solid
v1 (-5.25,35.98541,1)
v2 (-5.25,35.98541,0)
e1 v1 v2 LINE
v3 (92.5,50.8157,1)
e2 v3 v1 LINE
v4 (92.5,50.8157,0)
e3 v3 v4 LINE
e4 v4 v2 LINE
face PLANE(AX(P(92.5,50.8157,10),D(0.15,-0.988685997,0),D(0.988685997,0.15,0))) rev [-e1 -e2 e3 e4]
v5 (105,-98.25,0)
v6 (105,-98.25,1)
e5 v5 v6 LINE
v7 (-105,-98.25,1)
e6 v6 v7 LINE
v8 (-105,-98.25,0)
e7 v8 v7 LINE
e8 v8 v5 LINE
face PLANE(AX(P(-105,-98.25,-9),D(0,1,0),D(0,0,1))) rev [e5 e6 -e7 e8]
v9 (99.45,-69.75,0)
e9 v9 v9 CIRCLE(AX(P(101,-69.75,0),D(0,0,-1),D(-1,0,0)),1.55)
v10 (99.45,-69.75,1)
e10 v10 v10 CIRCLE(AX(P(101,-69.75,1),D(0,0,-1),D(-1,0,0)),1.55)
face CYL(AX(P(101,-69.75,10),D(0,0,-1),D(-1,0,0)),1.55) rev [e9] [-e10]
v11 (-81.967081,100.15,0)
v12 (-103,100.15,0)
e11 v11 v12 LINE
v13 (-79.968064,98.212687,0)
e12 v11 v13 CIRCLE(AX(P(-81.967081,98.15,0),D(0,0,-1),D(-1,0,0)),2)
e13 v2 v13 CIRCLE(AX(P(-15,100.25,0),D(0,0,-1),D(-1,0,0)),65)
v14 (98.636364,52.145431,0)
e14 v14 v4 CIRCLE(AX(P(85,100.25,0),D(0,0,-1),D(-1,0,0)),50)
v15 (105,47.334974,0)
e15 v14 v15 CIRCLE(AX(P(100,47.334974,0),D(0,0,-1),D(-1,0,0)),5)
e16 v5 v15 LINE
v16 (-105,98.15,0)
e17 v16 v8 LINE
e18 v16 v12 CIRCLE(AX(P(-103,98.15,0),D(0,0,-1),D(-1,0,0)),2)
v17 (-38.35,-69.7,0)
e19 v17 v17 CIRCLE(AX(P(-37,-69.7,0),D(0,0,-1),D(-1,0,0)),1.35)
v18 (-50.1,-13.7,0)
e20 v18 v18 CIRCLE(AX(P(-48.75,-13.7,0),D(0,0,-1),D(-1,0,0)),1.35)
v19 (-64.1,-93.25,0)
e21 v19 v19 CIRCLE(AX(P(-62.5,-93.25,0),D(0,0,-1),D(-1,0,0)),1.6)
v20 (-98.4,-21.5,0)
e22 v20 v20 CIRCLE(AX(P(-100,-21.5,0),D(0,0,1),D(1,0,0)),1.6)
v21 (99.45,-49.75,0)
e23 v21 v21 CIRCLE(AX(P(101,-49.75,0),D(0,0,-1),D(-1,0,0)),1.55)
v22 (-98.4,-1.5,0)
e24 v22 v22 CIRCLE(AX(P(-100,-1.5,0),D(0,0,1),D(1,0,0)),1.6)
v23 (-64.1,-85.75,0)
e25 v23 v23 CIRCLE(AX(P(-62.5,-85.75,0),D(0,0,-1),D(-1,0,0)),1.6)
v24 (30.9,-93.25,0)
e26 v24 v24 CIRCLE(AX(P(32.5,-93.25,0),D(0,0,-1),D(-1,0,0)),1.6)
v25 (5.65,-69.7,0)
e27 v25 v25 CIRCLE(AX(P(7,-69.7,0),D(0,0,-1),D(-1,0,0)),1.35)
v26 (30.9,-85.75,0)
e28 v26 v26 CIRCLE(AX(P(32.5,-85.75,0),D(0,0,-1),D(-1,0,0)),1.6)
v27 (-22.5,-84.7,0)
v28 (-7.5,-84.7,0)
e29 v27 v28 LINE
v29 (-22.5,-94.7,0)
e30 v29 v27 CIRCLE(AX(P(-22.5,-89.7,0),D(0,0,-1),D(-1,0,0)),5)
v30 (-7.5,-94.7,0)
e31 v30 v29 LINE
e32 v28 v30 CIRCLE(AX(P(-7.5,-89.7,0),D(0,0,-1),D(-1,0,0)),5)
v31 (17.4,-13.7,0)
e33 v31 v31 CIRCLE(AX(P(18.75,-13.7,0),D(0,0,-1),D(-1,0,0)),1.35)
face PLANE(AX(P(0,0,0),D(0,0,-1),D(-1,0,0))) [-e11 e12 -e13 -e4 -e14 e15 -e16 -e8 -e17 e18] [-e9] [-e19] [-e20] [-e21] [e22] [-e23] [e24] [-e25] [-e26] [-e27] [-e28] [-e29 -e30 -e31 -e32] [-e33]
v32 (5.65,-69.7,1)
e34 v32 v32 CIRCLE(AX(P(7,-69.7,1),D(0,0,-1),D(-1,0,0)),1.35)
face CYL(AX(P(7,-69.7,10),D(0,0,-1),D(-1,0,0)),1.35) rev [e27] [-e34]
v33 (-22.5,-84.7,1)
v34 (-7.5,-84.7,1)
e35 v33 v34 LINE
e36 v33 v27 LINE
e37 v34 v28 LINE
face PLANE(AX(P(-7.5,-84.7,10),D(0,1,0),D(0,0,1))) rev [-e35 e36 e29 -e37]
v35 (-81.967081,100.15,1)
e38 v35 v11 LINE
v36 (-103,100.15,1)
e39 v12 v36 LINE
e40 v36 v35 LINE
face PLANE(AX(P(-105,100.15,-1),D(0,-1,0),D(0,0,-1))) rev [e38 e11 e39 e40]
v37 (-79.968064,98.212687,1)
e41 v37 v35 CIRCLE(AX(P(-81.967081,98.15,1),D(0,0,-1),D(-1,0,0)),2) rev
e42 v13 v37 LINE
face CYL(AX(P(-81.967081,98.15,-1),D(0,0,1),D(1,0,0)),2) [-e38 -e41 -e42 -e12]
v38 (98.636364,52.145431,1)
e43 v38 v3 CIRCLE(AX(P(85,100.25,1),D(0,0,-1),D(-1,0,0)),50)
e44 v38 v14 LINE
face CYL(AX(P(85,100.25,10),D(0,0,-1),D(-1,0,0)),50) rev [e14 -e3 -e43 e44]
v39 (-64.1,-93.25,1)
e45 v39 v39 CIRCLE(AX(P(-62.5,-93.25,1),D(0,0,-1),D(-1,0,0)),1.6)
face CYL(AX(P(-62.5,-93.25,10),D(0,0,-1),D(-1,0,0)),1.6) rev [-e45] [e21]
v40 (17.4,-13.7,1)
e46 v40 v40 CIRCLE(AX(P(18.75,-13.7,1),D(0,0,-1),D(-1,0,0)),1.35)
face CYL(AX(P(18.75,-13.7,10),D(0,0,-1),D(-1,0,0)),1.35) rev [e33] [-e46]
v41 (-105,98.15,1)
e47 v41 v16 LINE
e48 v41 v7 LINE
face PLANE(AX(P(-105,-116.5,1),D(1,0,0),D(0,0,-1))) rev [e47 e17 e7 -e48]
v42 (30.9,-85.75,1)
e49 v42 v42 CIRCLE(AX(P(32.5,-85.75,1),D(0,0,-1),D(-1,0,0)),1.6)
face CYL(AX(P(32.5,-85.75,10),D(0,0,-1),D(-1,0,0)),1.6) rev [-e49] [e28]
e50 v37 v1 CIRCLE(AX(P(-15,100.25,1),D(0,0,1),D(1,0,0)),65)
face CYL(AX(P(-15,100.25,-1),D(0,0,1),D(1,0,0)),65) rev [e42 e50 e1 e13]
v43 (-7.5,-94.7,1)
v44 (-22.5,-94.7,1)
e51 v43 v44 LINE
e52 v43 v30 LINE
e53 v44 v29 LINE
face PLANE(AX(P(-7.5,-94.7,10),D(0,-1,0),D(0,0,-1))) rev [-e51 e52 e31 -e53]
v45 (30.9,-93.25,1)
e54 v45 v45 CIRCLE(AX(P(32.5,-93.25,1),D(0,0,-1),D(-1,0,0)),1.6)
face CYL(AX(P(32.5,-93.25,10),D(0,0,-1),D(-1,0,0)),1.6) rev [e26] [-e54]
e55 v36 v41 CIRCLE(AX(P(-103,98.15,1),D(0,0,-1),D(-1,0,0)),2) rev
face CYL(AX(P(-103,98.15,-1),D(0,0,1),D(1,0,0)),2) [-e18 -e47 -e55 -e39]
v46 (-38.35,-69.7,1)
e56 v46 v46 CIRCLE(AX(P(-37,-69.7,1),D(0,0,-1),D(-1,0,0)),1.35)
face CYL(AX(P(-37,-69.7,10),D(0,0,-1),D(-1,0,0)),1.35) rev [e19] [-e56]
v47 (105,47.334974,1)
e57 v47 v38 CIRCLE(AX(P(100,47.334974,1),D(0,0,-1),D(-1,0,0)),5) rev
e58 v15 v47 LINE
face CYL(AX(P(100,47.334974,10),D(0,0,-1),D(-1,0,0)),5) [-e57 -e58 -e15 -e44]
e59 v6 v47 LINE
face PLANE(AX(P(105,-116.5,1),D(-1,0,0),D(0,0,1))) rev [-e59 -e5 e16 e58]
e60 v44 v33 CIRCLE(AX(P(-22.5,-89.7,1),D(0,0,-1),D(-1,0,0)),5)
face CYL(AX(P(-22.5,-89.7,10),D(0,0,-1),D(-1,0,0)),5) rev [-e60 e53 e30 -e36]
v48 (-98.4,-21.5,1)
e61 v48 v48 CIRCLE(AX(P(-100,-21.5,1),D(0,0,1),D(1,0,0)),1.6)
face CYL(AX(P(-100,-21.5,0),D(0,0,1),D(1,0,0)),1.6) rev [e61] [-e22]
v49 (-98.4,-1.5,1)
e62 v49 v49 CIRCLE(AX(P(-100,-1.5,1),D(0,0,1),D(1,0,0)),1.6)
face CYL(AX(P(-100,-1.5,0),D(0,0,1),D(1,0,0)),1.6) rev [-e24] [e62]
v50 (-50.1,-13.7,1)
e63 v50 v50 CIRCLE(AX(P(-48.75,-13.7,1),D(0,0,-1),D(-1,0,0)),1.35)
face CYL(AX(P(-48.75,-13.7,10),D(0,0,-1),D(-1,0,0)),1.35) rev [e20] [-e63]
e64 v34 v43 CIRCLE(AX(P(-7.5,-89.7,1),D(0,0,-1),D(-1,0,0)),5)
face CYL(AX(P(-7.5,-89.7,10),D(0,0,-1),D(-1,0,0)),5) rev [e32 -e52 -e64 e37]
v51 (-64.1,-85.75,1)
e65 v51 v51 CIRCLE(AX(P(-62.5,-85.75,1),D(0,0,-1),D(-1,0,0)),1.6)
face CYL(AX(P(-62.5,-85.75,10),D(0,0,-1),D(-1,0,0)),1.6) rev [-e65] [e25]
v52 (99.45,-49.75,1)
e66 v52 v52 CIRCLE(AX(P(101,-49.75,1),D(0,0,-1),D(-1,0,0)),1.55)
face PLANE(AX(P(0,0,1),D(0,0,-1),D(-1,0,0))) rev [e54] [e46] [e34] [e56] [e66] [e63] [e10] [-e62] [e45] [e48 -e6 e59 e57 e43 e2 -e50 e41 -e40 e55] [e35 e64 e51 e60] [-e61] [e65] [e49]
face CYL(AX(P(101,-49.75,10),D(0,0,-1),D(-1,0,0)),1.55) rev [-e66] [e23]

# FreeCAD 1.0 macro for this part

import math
import FreeCAD as App
import Part
import Sketcher


def edges_at(feature, points):
    """Names of the edges that pass closest to the given points."""
    edges = feature.Shape.Edges
    near = lambda p: min(range(len(edges)), key=lambda i: edges[i].distToShape(Part.Vertex(*p))[0])
    return sorted({f"Edge{near(p) + 1}" for p in points})

doc = App.newDocument("Part")
body = doc.addObject("PartDesign::Body", "Body")

sketch1 = body.newObject("Sketcher::SketchObject", "Sketch")
sketch1.AttachmentSupport = (doc.getObject("XY_Plane"), [""])
sketch1.MapMode = "FlatFace"
sketch1.addGeometry(Part.LineSegment(App.Vector(-105, 116.5, 0), App.Vector(-105, -116.5, 0)), False)
sketch1.addGeometry(Part.LineSegment(App.Vector(-105, -116.5, 0), App.Vector(105, -116.5, 0)), False)
sketch1.addGeometry(Part.LineSegment(App.Vector(105, -116.5, 0), App.Vector(105, 116.5, 0)), False)
sketch1.addGeometry(Part.LineSegment(App.Vector(105, 116.5, 0), App.Vector(-105, 116.5, 0)), False)
sketch1.addConstraint(Sketcher.Constraint("Coincident", 0, 2, 1, 1))
sketch1.addConstraint(Sketcher.Constraint("Coincident", 1, 2, 2, 1))
sketch1.addConstraint(Sketcher.Constraint("Coincident", 2, 2, 3, 1))
sketch1.addConstraint(Sketcher.Constraint("Coincident", 3, 2, 0, 1))
sketch1.addConstraint(Sketcher.Constraint("Vertical", 0))
sketch1.addConstraint(Sketcher.Constraint("Horizontal", 1))
sketch1.addConstraint(Sketcher.Constraint("Vertical", 2))
sketch1.addConstraint(Sketcher.Constraint("Horizontal", 3))
sketch1.addConstraint(Sketcher.Constraint("Symmetric", 0, 2, 2, 2, -1, 1))
sketch1.addConstraint(Sketcher.Constraint("DistanceX", 1, 1, 1, 2, 210.0))
sketch1.addConstraint(Sketcher.Constraint("DistanceY", 0, 2, 0, 1, 233.0))
pad1 = body.newObject("PartDesign::Pad", "Pad")
pad1.Profile = sketch1
pad1.Length = 1

sketch2 = body.newObject("Sketcher::SketchObject", "Sketch001")
sketch2.AttachmentSupport = (doc.getObject("XY_Plane"), [""])
sketch2.MapMode = "FlatFace"
sketch2.AttachmentOffset = App.Placement(App.Vector(0, 0, 1), App.Rotation())
sketch2.addGeometry(Part.Circle(App.Vector(-15, 100.25, 0), App.Vector(0, 0, 1), 65), False)
sketch2.addConstraint(Sketcher.Constraint("Diameter", 0, 130.0))
sketch2.addConstraint(Sketcher.Constraint("DistanceX", 0, 3, -1, 1, 15.0))
sketch2.addConstraint(Sketcher.Constraint("DistanceY", -1, 1, 0, 3, 100.25))
pocket1 = body.newObject("PartDesign::Pocket", "Pocket")
pocket1.Profile = sketch2
pocket1.Length = 2

sketch3 = body.newObject("Sketcher::SketchObject", "Sketch002")
sketch3.AttachmentSupport = (doc.getObject("XY_Plane"), [""])
sketch3.MapMode = "FlatFace"
sketch3.AttachmentOffset = App.Placement(App.Vector(0, 0, 1), App.Rotation())
sketch3.addGeometry(Part.LineSegment(App.Vector(-105, 116.5, 0), App.Vector(-105, 100.25, 0)), False)
sketch3.addGeometry(Part.LineSegment(App.Vector(-105, 100.25, 0), App.Vector(105, 100.25, 0)), False)
sketch3.addGeometry(Part.LineSegment(App.Vector(105, 100.25, 0), App.Vector(105, 116.5, 0)), False)
sketch3.addGeometry(Part.LineSegment(App.Vector(105, 116.5, 0), App.Vector(-105, 116.5, 0)), False)
sketch3.addConstraint(Sketcher.Constraint("Coincident", 0, 2, 1, 1))
sketch3.addConstraint(Sketcher.Constraint("Coincident", 1, 2, 2, 1))
sketch3.addConstraint(Sketcher.Constraint("Coincident", 2, 2, 3, 1))
sketch3.addConstraint(Sketcher.Constraint("Coincident", 3, 2, 0, 1))
sketch3.addConstraint(Sketcher.Constraint("Vertical", 0))
sketch3.addConstraint(Sketcher.Constraint("Horizontal", 1))
sketch3.addConstraint(Sketcher.Constraint("Vertical", 2))
sketch3.addConstraint(Sketcher.Constraint("Horizontal", 3))
sketch3.addConstraint(Sketcher.Constraint("DistanceX", 1, 1, 1, 2, 210.0))
sketch3.addConstraint(Sketcher.Constraint("DistanceX", 0, 2, -1, 1, 105.0))
sketch3.addConstraint(Sketcher.Constraint("DistanceY", 0, 2, 0, 1, 16.25))
sketch3.addConstraint(Sketcher.Constraint("DistanceY", -1, 1, 2, 2, 116.5))
pocket2 = body.newObject("PartDesign::Pocket", "Pocket001")
pocket2.Profile = sketch3
pocket2.Length = 2

sketch4 = body.newObject("Sketcher::SketchObject", "Sketch003")
sketch4.AttachmentSupport = (doc.getObject("XY_Plane"), [""])
sketch4.MapMode = "FlatFace"
sketch4.AttachmentOffset = App.Placement(App.Vector(0, 0, 1), App.Rotation())
sketch4.addGeometry(Part.LineSegment(App.Vector(-105, 100.25, 0), App.Vector(-105, 100.15, 0)), False)
sketch4.addGeometry(Part.LineSegment(App.Vector(-105, 100.15, 0), App.Vector(105, 100.15, 0)), False)
sketch4.addGeometry(Part.LineSegment(App.Vector(105, 100.15, 0), App.Vector(105, 100.25, 0)), False)
sketch4.addGeometry(Part.LineSegment(App.Vector(105, 100.25, 0), App.Vector(-105, 100.25, 0)), False)
sketch4.addConstraint(Sketcher.Constraint("Coincident", 0, 2, 1, 1))
sketch4.addConstraint(Sketcher.Constraint("Coincident", 1, 2, 2, 1))
sketch4.addConstraint(Sketcher.Constraint("Coincident", 2, 2, 3, 1))
sketch4.addConstraint(Sketcher.Constraint("Coincident", 3, 2, 0, 1))
sketch4.addConstraint(Sketcher.Constraint("Vertical", 0))
sketch4.addConstraint(Sketcher.Constraint("Horizontal", 1))
sketch4.addConstraint(Sketcher.Constraint("Vertical", 2))
sketch4.addConstraint(Sketcher.Constraint("Horizontal", 3))
sketch4.addConstraint(Sketcher.Constraint("DistanceX", 1, 1, 1, 2, 210.0))
sketch4.addConstraint(Sketcher.Constraint("DistanceY", 0, 2, 0, 1, 0.1))
sketch4.addConstraint(Sketcher.Constraint("DistanceX", 0, 2, -1, 1, 105.0))
sketch4.addConstraint(Sketcher.Constraint("DistanceY", -1, 1, 0, 2, 100.15))
pocket3 = body.newObject("PartDesign::Pocket", "Pocket002")
pocket3.Profile = sketch4
pocket3.Length = 2

sketch5 = body.newObject("Sketcher::SketchObject", "Sketch004")
sketch5.AttachmentSupport = (doc.getObject("XY_Plane"), [""])
sketch5.MapMode = "FlatFace"
sketch5.AttachmentOffset = App.Placement(App.Vector(0, 0, 1), App.Rotation())
sketch5.addGeometry(Part.LineSegment(App.Vector(4.5, 38.243952, 0), App.Vector(95.5, 66.862128, 0)), False)
sketch5.addGeometry(Part.ArcOfCircle(Part.Circle(App.Vector(85, 100.25, 0), App.Vector(0, 0, 1), 35), math.radians(-72.542397), math.radians(179.960655)), False)
sketch5.addGeometry(Part.LineSegment(App.Vector(50.000008, 100.274035, 0), App.Vector(49.999923, 100.15, 0)), False)
sketch5.addGeometry(Part.ArcOfCircle(Part.Circle(App.Vector(-15, 100.25, 0), App.Vector(0, 0, 1), 65), math.radians(-72.542397), math.radians(-0.088147)), False)
sketch5.addConstraint(Sketcher.Constraint("Tangent", 0, 2, 1, 1))
sketch5.addConstraint(Sketcher.Constraint("Tangent", 1, 2, 2, 1))
sketch5.addConstraint(Sketcher.Constraint("Coincident", 2, 2, 3, 2))
sketch5.addConstraint(Sketcher.Constraint("Tangent", 3, 1, 0, 1))
sketch5.addConstraint(Sketcher.Constraint("Horizontal", 1, 3, 3, 3))
sketch5.addConstraint(Sketcher.Constraint("Radius", 1, 35.0))
sketch5.addConstraint(Sketcher.Constraint("Radius", 3, 65.0))
sketch5.addConstraint(Sketcher.Constraint("DistanceX", -1, 1, 1, 3, 85.0))
sketch5.addConstraint(Sketcher.Constraint("DistanceX", 3, 3, -1, 1, 15.0))
sketch5.addConstraint(Sketcher.Constraint("DistanceY", 2, 2, 1, 3, 0.1))
sketch5.addConstraint(Sketcher.Constraint("DistanceY", -1, 1, 1, 3, 100.25))
pocket4 = body.newObject("PartDesign::Pocket", "Pocket003")
pocket4.Profile = sketch5
pocket4.Length = 2

sketch6 = body.newObject("Sketcher::SketchObject", "Sketch005")
sketch6.AttachmentSupport = (doc.getObject("XY_Plane"), [""])
sketch6.MapMode = "FlatFace"
sketch6.AttachmentOffset = App.Placement(App.Vector(0, 0, 1), App.Rotation())
sketch6.addGeometry(Part.Circle(App.Vector(-100, -21.5, 0), App.Vector(0, 0, 1), 1.6), False)
sketch6.addGeometry(Part.Circle(App.Vector(-100, -1.5, 0), App.Vector(0, 0, 1), 1.6), False)
sketch6.addConstraint(Sketcher.Constraint("Equal", 0, 1))
sketch6.addConstraint(Sketcher.Constraint("Vertical", 0, 3, 1, 3))
sketch6.addConstraint(Sketcher.Constraint("Diameter", 0, 3.2))
sketch6.addConstraint(Sketcher.Constraint("DistanceX", 0, 3, -1, 1, 100.0))
sketch6.addConstraint(Sketcher.Constraint("DistanceY", 0, 3, 1, 3, 20.0))
sketch6.addConstraint(Sketcher.Constraint("DistanceY", 0, 3, -1, 1, 21.5))
pocket5 = body.newObject("PartDesign::Pocket", "Pocket004")
pocket5.Profile = sketch6
pocket5.Length = 1

sketch7 = body.newObject("Sketcher::SketchObject", "Sketch006")
sketch7.AttachmentSupport = (doc.getObject("XY_Plane"), [""])
sketch7.MapMode = "FlatFace"
sketch7.addGeometry(Part.Circle(App.Vector(18.75, -13.7, 0), App.Vector(0, 0, 1), 1.35), False)
sketch7.addGeometry(Part.Circle(App.Vector(-48.75, -13.7, 0), App.Vector(0, 0, 1), 1.35), False)
sketch7.addGeometry(Part.Circle(App.Vector(7, -69.7, 0), App.Vector(0, 0, 1), 1.35), False)
sketch7.addGeometry(Part.Circle(App.Vector(-37, -69.7, 0), App.Vector(0, 0, 1), 1.35), False)
sketch7.addConstraint(Sketcher.Constraint("Equal", 0, 1))
sketch7.addConstraint(Sketcher.Constraint("Equal", 1, 2))
sketch7.addConstraint(Sketcher.Constraint("Equal", 2, 3))
sketch7.addConstraint(Sketcher.Constraint("Horizontal", 0, 3, 1, 3))
sketch7.addConstraint(Sketcher.Constraint("Horizontal", 2, 3, 3, 3))
sketch7.addConstraint(Sketcher.Constraint("Diameter", 0, 2.7))
sketch7.addConstraint(Sketcher.Constraint("DistanceX", -1, 1, 2, 3, 7.0))
sketch7.addConstraint(Sketcher.Constraint("DistanceX", 3, 3, -1, 1, 37.0))
sketch7.addConstraint(Sketcher.Constraint("DistanceY", 2, 3, 0, 3, 56.0))
sketch7.addConstraint(Sketcher.Constraint("DistanceY", 0, 3, -1, 1, 13.7))
sketch7.addConstraint(Sketcher.Constraint("DistanceX", 1, 3, 0, 3, 67.5))
sketch7.addConstraint(Sketcher.Constraint("DistanceX", -1, 1, 0, 3, 18.75))
pocket6 = body.newObject("PartDesign::Pocket", "Pocket005")
pocket6.Profile = sketch7
pocket6.Length = 10
pocket6.Reversed = True

sketch8 = body.newObject("Sketcher::SketchObject", "Sketch007")
sketch8.AttachmentSupport = (doc.getObject("XY_Plane"), [""])
sketch8.MapMode = "FlatFace"
sketch8.addGeometry(Part.LineSegment(App.Vector(-22.5, -84.7, 0), App.Vector(-7.5, -84.7, 0)), False)
sketch8.addGeometry(Part.ArcOfCircle(Part.Circle(App.Vector(-7.5, -89.7, 0), App.Vector(0, 0, 1), 5), math.radians(-90), math.radians(90)), False)
sketch8.addGeometry(Part.LineSegment(App.Vector(-7.5, -94.7, 0), App.Vector(-22.5, -94.7, 0)), False)
sketch8.addGeometry(Part.ArcOfCircle(Part.Circle(App.Vector(-22.5, -89.7, 0), App.Vector(0, 0, 1), 5), math.radians(90), math.radians(270)), False)
sketch8.addConstraint(Sketcher.Constraint("Tangent", 0, 2, 1, 2))
sketch8.addConstraint(Sketcher.Constraint("Tangent", 1, 1, 2, 1))
sketch8.addConstraint(Sketcher.Constraint("Tangent", 2, 2, 3, 2))
sketch8.addConstraint(Sketcher.Constraint("Tangent", 3, 1, 0, 1))
sketch8.addConstraint(Sketcher.Constraint("Horizontal", 0))
sketch8.addConstraint(Sketcher.Constraint("Horizontal", 2))
sketch8.addConstraint(Sketcher.Constraint("Radius", 1, 5.0))
sketch8.addConstraint(Sketcher.Constraint("DistanceX", 0, 1, 0, 2, 15.0))
sketch8.addConstraint(Sketcher.Constraint("DistanceX", 1, 3, -1, 1, 7.5))
sketch8.addConstraint(Sketcher.Constraint("DistanceY", 1, 3, -1, 1, 89.7))
pocket7 = body.newObject("PartDesign::Pocket", "Pocket006")
pocket7.Profile = sketch8
pocket7.Length = 10
pocket7.Reversed = True
doc.recompute()

fillet = body.newObject("PartDesign::Fillet", "Fillet")
fillet.Base = (pocket7, edges_at(pocket7, [
    (105, 71.527, 0.5),
    (-80, 100.15, 0.5),
    (-105, 100.15, 0.5),
    (105, -116.5, 0.5),
    (-105, -116.5, 0.5),
]))
fillet.Radius = 2

sketch9 = body.newObject("Sketcher::SketchObject", "Sketch008")
sketch9.AttachmentSupport = (doc.getObject("XY_Plane"), [""])
sketch9.MapMode = "FlatFace"
sketch9.addGeometry(Part.Circle(App.Vector(32.5, -85.75, 0), App.Vector(0, 0, 1), 1.6), False)
sketch9.addGeometry(Part.Circle(App.Vector(32.5, -93.25, 0), App.Vector(0, 0, 1), 1.6), False)
sketch9.addGeometry(Part.Circle(App.Vector(-62.5, -85.75, 0), App.Vector(0, 0, 1), 1.6), False)
sketch9.addGeometry(Part.Circle(App.Vector(-62.5, -93.25, 0), App.Vector(0, 0, 1), 1.6), False)
sketch9.addConstraint(Sketcher.Constraint("Equal", 0, 1))
sketch9.addConstraint(Sketcher.Constraint("Equal", 1, 2))
sketch9.addConstraint(Sketcher.Constraint("Equal", 2, 3))
sketch9.addConstraint(Sketcher.Constraint("Horizontal", 0, 3, 2, 3))
sketch9.addConstraint(Sketcher.Constraint("Horizontal", 1, 3, 3, 3))
sketch9.addConstraint(Sketcher.Constraint("Vertical", 0, 3, 1, 3))
sketch9.addConstraint(Sketcher.Constraint("Vertical", 2, 3, 3, 3))
sketch9.addConstraint(Sketcher.Constraint("Diameter", 0, 3.2))
sketch9.addConstraint(Sketcher.Constraint("DistanceX", 2, 3, 0, 3, 95.0))
sketch9.addConstraint(Sketcher.Constraint("DistanceX", -1, 1, 0, 3, 32.5))
sketch9.addConstraint(Sketcher.Constraint("DistanceY", 1, 3, 0, 3, 7.5))
sketch9.addConstraint(Sketcher.Constraint("DistanceY", 0, 3, -1, 1, 85.75))
pocket8 = body.newObject("PartDesign::Pocket", "Pocket007")
pocket8.Profile = sketch9
pocket8.Length = 10
pocket8.Reversed = True

sketch10 = body.newObject("Sketcher::SketchObject", "Sketch009")
sketch10.AttachmentSupport = (doc.getObject("XY_Plane"), [""])
sketch10.MapMode = "FlatFace"
sketch10.addGeometry(Part.Circle(App.Vector(101, -49.75, 0), App.Vector(0, 0, 1), 1.55), False)
sketch10.addGeometry(Part.Circle(App.Vector(101, -69.75, 0), App.Vector(0, 0, 1), 1.55), False)
sketch10.addConstraint(Sketcher.Constraint("Equal", 0, 1))
sketch10.addConstraint(Sketcher.Constraint("Vertical", 0, 3, 1, 3))
sketch10.addConstraint(Sketcher.Constraint("Diameter", 0, 3.1))
sketch10.addConstraint(Sketcher.Constraint("DistanceX", -1, 1, 0, 3, 101.0))
sketch10.addConstraint(Sketcher.Constraint("DistanceY", 1, 3, 0, 3, 20.0))
sketch10.addConstraint(Sketcher.Constraint("DistanceY", 0, 3, -1, 1, 49.75))
pocket9 = body.newObject("PartDesign::Pocket", "Pocket008")
pocket9.Profile = sketch10
pocket9.Length = 10
pocket9.Reversed = True

sketch11 = body.newObject("Sketcher::SketchObject", "Sketch010")
sketch11.AttachmentSupport = (doc.getObject("XY_Plane"), [""])
sketch11.MapMode = "FlatFace"
sketch11.addGeometry(Part.LineSegment(App.Vector(92.5, 50.8157, 0), App.Vector(-5.25, 35.98541, 0)), False)
sketch11.addGeometry(Part.LineSegment(App.Vector(-5.25, 35.98541, 0), App.Vector(105, 79.424243, 0)), False)
sketch11.addGeometry(Part.LineSegment(App.Vector(105, 79.424243, 0), App.Vector(105, 54.424243, 0)), False)
sketch11.addGeometry(Part.ArcOfCircle(Part.Circle(App.Vector(85, 100.25, 0), App.Vector(0, 0, 1), 50), math.radians(-81.373073), math.radians(-66.421822)), False)
sketch11.addConstraint(Sketcher.Constraint("Coincident", 0, 2, 1, 1))
sketch11.addConstraint(Sketcher.Constraint("Coincident", 1, 2, 2, 1))
sketch11.addConstraint(Sketcher.Constraint("Coincident", 2, 2, 3, 2))
sketch11.addConstraint(Sketcher.Constraint("Tangent", 3, 1, 0, 1))
sketch11.addConstraint(Sketcher.Constraint("Vertical", 2))
sketch11.addConstraint(Sketcher.Constraint("Radius", 3, 50.0))
sketch11.addConstraint(Sketcher.Constraint("DistanceY", 2, 2, 2, 1, 25.0))
sketch11.addConstraint(Sketcher.Constraint("DistanceX", -1, 1, 3, 3, 85.0))
sketch11.addConstraint(Sketcher.Constraint("DistanceX", -1, 1, 1, 2, 105.0))
sketch11.addConstraint(Sketcher.Constraint("DistanceX", -1, 1, 3, 1, 92.5))
sketch11.addConstraint(Sketcher.Constraint("DistanceY", -1, 1, 3, 3, 100.25))
sketch11.addConstraint(Sketcher.Constraint("DistanceX", 0, 2, -1, 1, 5.25))
pocket10 = body.newObject("PartDesign::Pocket", "Pocket009")
pocket10.Profile = sketch11
pocket10.Length = 10
pocket10.Reversed = True
doc.recompute()

fillet2 = body.newObject("PartDesign::Fillet", "Fillet001")
fillet2.Base = (pocket10, edges_at(pocket10, [(105, 54.424, 0.5)]))
fillet2.Radius = 5

sketch12 = body.newObject("Sketcher::SketchObject", "Sketch011")
sketch12.AttachmentSupport = (doc.getObject("XY_Plane"), [""])
sketch12.MapMode = "FlatFace"
sketch12.AttachmentOffset = App.Placement(App.Vector(0, 0, 1), App.Rotation())
sketch12.addGeometry(Part.LineSegment(App.Vector(-105, -98.25, 0), App.Vector(-105, -116.5, 0)), False)
sketch12.addGeometry(Part.LineSegment(App.Vector(-105, -116.5, 0), App.Vector(105, -116.5, 0)), False)
sketch12.addGeometry(Part.LineSegment(App.Vector(105, -116.5, 0), App.Vector(105, -98.25, 0)), False)
sketch12.addGeometry(Part.LineSegment(App.Vector(105, -98.25, 0), App.Vector(-105, -98.25, 0)), False)
sketch12.addConstraint(Sketcher.Constraint("Coincident", 0, 2, 1, 1))
sketch12.addConstraint(Sketcher.Constraint("Coincident", 1, 2, 2, 1))
sketch12.addConstraint(Sketcher.Constraint("Coincident", 2, 2, 3, 1))
sketch12.addConstraint(Sketcher.Constraint("Coincident", 3, 2, 0, 1))
sketch12.addConstraint(Sketcher.Constraint("Vertical", 0))
sketch12.addConstraint(Sketcher.Constraint("Horizontal", 1))
sketch12.addConstraint(Sketcher.Constraint("Vertical", 2))
sketch12.addConstraint(Sketcher.Constraint("Horizontal", 3))
sketch12.addConstraint(Sketcher.Constraint("DistanceX", 1, 1, 1, 2, 210.0))
sketch12.addConstraint(Sketcher.Constraint("DistanceX", 0, 2, -1, 1, 105.0))
sketch12.addConstraint(Sketcher.Constraint("DistanceY", 0, 2, 0, 1, 18.25))
sketch12.addConstraint(Sketcher.Constraint("DistanceY", 0, 2, -1, 1, 116.5))
pocket11 = body.newObject("PartDesign::Pocket", "Pocket010")
pocket11.Profile = sketch12
pocket11.Length = 10

doc.recompute()
